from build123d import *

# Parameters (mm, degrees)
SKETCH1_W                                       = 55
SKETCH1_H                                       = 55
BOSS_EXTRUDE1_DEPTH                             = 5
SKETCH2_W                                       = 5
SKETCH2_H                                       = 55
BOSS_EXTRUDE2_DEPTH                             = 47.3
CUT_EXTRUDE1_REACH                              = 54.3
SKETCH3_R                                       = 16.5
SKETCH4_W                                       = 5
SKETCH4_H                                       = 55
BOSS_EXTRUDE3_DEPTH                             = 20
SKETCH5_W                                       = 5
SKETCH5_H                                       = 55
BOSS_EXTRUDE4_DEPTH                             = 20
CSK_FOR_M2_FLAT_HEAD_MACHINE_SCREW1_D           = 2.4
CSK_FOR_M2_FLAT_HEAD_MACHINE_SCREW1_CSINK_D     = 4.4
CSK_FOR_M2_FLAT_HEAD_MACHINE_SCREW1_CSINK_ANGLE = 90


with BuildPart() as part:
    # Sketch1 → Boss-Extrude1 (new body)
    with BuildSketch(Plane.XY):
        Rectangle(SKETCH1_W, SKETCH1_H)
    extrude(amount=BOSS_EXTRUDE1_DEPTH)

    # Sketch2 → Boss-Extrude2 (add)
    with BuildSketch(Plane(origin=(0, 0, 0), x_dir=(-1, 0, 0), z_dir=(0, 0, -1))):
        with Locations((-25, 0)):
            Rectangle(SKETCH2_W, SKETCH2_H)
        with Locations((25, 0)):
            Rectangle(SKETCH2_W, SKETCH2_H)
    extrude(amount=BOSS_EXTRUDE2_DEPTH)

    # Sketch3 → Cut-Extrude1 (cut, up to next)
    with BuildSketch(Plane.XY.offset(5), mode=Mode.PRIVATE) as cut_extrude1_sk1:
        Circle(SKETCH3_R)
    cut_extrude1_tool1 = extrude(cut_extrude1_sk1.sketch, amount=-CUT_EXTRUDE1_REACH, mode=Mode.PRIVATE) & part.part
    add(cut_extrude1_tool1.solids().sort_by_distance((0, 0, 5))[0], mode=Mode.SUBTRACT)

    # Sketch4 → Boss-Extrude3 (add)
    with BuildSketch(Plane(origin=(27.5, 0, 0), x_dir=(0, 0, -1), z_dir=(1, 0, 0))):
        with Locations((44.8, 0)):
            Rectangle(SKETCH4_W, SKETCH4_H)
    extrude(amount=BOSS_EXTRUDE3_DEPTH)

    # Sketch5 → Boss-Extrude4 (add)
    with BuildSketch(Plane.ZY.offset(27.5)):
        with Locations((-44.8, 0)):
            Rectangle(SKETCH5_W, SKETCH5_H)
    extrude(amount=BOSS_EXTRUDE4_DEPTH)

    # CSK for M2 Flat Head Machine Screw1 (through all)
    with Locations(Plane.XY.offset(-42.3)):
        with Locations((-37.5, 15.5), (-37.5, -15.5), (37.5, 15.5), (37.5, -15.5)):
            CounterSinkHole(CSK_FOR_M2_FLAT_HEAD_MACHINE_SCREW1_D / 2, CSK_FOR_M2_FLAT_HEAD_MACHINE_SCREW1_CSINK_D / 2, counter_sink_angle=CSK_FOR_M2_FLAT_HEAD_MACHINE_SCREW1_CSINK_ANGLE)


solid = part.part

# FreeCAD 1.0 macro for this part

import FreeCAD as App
import Part
import Sketcher
from FreeCAD import Vector
Q = App.Units.Quantity

doc = App.newDocument("Part")
body = doc.addObject("PartDesign::Body", "Body")

# Sketch on XY plane
sketch1 = doc.addObject("Sketcher::SketchObject", "Sketch")
body.addObject(sketch1)
sketch1.AttachmentSupport = (doc.XY_Plane, [""])
sketch1.MapMode = "FlatFace"
sketch1.addGeometry([
    Part.LineSegment(Vector(-28, 28, 0), Vector(-28, -28, 0)),
    Part.LineSegment(Vector(-28, -28, 0), Vector(28, -28, 0)),
    Part.LineSegment(Vector(28, -28, 0), Vector(28, 28, 0)),
    Part.LineSegment(Vector(28, 28, 0), Vector(-28, 28, 0)),
], False)
sketch1.addConstraint([
    Sketcher.Constraint("Coincident", 0, 2, 1, 1),
    Sketcher.Constraint("Coincident", 1, 2, 2, 1),
    Sketcher.Constraint("Coincident", 2, 2, 3, 1),
    Sketcher.Constraint("Coincident", 3, 2, 0, 1),
    Sketcher.Constraint("Vertical", 0),
    Sketcher.Constraint("Horizontal", 1),
    Sketcher.Constraint("Vertical", 2),
    Sketcher.Constraint("Horizontal", 3),
    Sketcher.Constraint("Symmetric", 0, 2, 2, 2, -1, 1),
    Sketcher.Constraint("Equal", 3, 0),
    Sketcher.Constraint("DistanceX", 1, 1, 1, 2, Q("55 mm")),
])
pad1 = doc.addObject("PartDesign::Pad", "Pad")
body.addObject(pad1)
pad1.Profile = sketch1
pad1.Length = 5

# Sketch on XY plane
sketch2 = doc.addObject("Sketcher::SketchObject", "Sketch001")
body.addObject(sketch2)
sketch2.AttachmentSupport = (doc.XY_Plane, [""])
sketch2.MapMode = "FlatFace"
sketch2.addGeometry([
    Part.LineSegment(Vector(28, 28, 0), Vector(28, -28, 0)),  # 0
    Part.LineSegment(Vector(28, -28, 0), Vector(22, -28, 0)),  # 1
    Part.LineSegment(Vector(22, -28, 0), Vector(22, 28, 0)),  # 2
    Part.LineSegment(Vector(22, 28, 0), Vector(28, 28, 0)),  # 3
    Part.LineSegment(Vector(-22, 28, 0), Vector(-22, -28, 0)),  # 4
    Part.LineSegment(Vector(-22, -28, 0), Vector(-28, -28, 0)),  # 5
    Part.LineSegment(Vector(-28, -28, 0), Vector(-28, 28, 0)),  # 6
    Part.LineSegment(Vector(-28, 28, 0), Vector(-22, 28, 0)),  # 7
], False)
sketch2.addConstraint([
    Sketcher.Constraint("Coincident", 0, 2, 1, 1),
    Sketcher.Constraint("Coincident", 1, 2, 2, 1),
    Sketcher.Constraint("Coincident", 2, 2, 3, 1),
    Sketcher.Constraint("Coincident", 3, 2, 0, 1),
    Sketcher.Constraint("Coincident", 4, 2, 5, 1),
    Sketcher.Constraint("Coincident", 5, 2, 6, 1),
    Sketcher.Constraint("Coincident", 6, 2, 7, 1),
    Sketcher.Constraint("Coincident", 7, 2, 4, 1),
    Sketcher.Constraint("Vertical", 0),
    Sketcher.Constraint("Horizontal", 1),
    Sketcher.Constraint("Vertical", 2),
    Sketcher.Constraint("Horizontal", 3),
    Sketcher.Constraint("Vertical", 4),
    Sketcher.Constraint("Horizontal", 5),
    Sketcher.Constraint("Vertical", 6),
    Sketcher.Constraint("Horizontal", 7),
    Sketcher.Constraint("Symmetric", 2, 2, 4, 2, -1, 1),
    Sketcher.Constraint("Symmetric", 0, 2, 6, 2, -1, 1),
    Sketcher.Constraint("Horizontal", 1, 2, 4, 2),
    Sketcher.Constraint("DistanceX", 1, 2, 1, 1, Q("5 mm")),
    Sketcher.Constraint("DistanceY", 0, 2, 0, 1, Q("55 mm")),
    Sketcher.Constraint("DistanceX", 4, 2, 1, 2, Q("45 mm")),
])
pad2 = doc.addObject("PartDesign::Pad", "Pad001")
body.addObject(pad2)
pad2.Profile = sketch2
pad2.Length = 47.3
pad2.Reversed = True

# Sketch on XY plane
sketch3 = doc.addObject("Sketcher::SketchObject", "Sketch002")
body.addObject(sketch3)
sketch3.AttachmentSupport = (doc.XY_Plane, [""])
sketch3.MapMode = "FlatFace"
sketch3.AttachmentOffset = App.Placement(Vector(0, 0, 5), App.Rotation())
sketch3.addGeometry(Part.Circle(Vector(0, 0, 0), Vector(0, 0, 1), 16), False)
sketch3.addConstraint([
    Sketcher.Constraint("Coincident", 0, 3, -1, 1),
    Sketcher.Constraint("Diameter", 0, Q("33 mm")),
])
pocket1 = doc.addObject("PartDesign::Pocket", "Pocket")
body.addObject(pocket1)
pocket1.Profile = sketch3
pocket1.Type = "UpToFirst"

# Sketch on YZ plane
sketch4 = doc.addObject("Sketcher::SketchObject", "Sketch003")
body.addObject(sketch4)
sketch4.AttachmentSupport = (doc.YZ_Plane, [""])
sketch4.MapMode = "FlatFace"
sketch4.AttachmentOffset = App.Placement(Vector(0, 0, 27.5), App.Rotation())
sketch4.addGeometry([
    Part.LineSegment(Vector(28, -42, 0), Vector(-28, -42, 0)),
    Part.LineSegment(Vector(-28, -42, 0), Vector(-28, -47, 0)),
    Part.LineSegment(Vector(-28, -47, 0), Vector(28, -47, 0)),
    Part.LineSegment(Vector(28, -47, 0), Vector(28, -42, 0)),
], False)
sketch4.addConstraint([
    Sketcher.Constraint("Coincident", 0, 2, 1, 1),
    Sketcher.Constraint("Coincident", 1, 2, 2, 1),
    Sketcher.Constraint("Coincident", 2, 2, 3, 1),
    Sketcher.Constraint("Coincident", 3, 2, 0, 1),
    Sketcher.Constraint("Horizontal", 0),
    Sketcher.Constraint("Vertical", 1),
    Sketcher.Constraint("Horizontal", 2),
    Sketcher.Constraint("Vertical", 3),
    Sketcher.Constraint("DistanceX", 0, 2, 0, 1, Q("55 mm")),
    Sketcher.Constraint("DistanceY", 1, 2, 1, 1, Q("5 mm")),
    Sketcher.Constraint("DistanceX", 0, 2, -1, 1, Q("27.5 mm")),
    Sketcher.Constraint("DistanceY", 0, 2, -1, 1, Q("42.3 mm")),
])
pad3 = doc.addObject("PartDesign::Pad", "Pad002")
body.addObject(pad3)
pad3.Profile = sketch4
pad3.Length = 20

# Sketch on YZ plane
sketch5 = doc.addObject("Sketcher::SketchObject", "Sketch004")
body.addObject(sketch5)
sketch5.AttachmentSupport = (doc.YZ_Plane, [""])
sketch5.MapMode = "FlatFace"
sketch5.AttachmentOffset = App.Placement(Vector(0, 0, -27.5), App.Rotation())
sketch5.addGeometry([
    Part.LineSegment(Vector(28, -47, 0), Vector(-28, -47, 0)),
    Part.LineSegment(Vector(-28, -47, 0), Vector(-28, -42, 0)),
    Part.LineSegment(Vector(-28, -42, 0), Vector(28, -42, 0)),
    Part.LineSegment(Vector(28, -42, 0), Vector(28, -47, 0)),
], False)
sketch5.addConstraint([
    Sketcher.Constraint("Coincident", 0, 2, 1, 1),
    Sketcher.Constraint("Coincident", 1, 2, 2, 1),
    Sketcher.Constraint("Coincident", 2, 2, 3, 1),
    Sketcher.Constraint("Coincident", 3, 2, 0, 1),
    Sketcher.Constraint("Horizontal", 0),
    Sketcher.Constraint("Vertical", 1),
    Sketcher.Constraint("Horizontal", 2),
    Sketcher.Constraint("Vertical", 3),
    Sketcher.Constraint("DistanceX", 0, 2, 0, 1, Q("55 mm")),
    Sketcher.Constraint("DistanceY", 1, 1, 1, 2, Q("5 mm")),
    Sketcher.Constraint("DistanceX", 0, 2, -1, 1, Q("27.5 mm")),
    Sketcher.Constraint("DistanceY", 0, 2, -1, 1, Q("47.3 mm")),
])
pad4 = doc.addObject("PartDesign::Pad", "Pad003")
body.addObject(pad4)
pad4.Profile = sketch5
pad4.Length = 20
pad4.Reversed = True

# Sketch on XY plane
sketch6 = doc.addObject("Sketcher::SketchObject", "Sketch005")
body.addObject(sketch6)
sketch6.AttachmentSupport = (doc.XY_Plane, [""])
sketch6.MapMode = "FlatFace"
sketch6.AttachmentOffset = App.Placement(Vector(0, 0, -42.3), App.Rotation())
sketch6.addGeometry([
    Part.Circle(Vector(-37.5, 15.5, 0), Vector(0, 0, 1), 1.2),
    Part.Circle(Vector(-37.5, -15.5, 0), Vector(0, 0, 1), 1.2),
    Part.Circle(Vector(37.5, 15.5, 0), Vector(0, 0, 1), 1.2),
    Part.Circle(Vector(37.5, -15.5, 0), Vector(0, 0, 1), 1.2),
], False)
sketch6.addConstraint([
    Sketcher.Constraint("Equal", 0, 1),
    Sketcher.Constraint("Equal", 1, 2),
    Sketcher.Constraint("Equal", 2, 3),
    Sketcher.Constraint("Symmetric", 1, 3, 2, 3, -1, 1),
    Sketcher.Constraint("Symmetric", 0, 3, 3, 3, -1, 1),
    Sketcher.Constraint("Symmetric", 0, 3, 2, 3, -2),
    Sketcher.Constraint("Diameter", 0, Q("2.4 mm")),
    Sketcher.Constraint("DistanceY", 1, 3, 0, 3, Q("31 mm")),
    Sketcher.Constraint("DistanceX", 0, 3, 2, 3, Q("75 mm")),
])
doc.recompute()
hole = doc.addObject("PartDesign::Hole", "Hole")
body.addObject(hole)
hole.Profile = sketch6
hole.ThreadType = "None"
hole.Diameter = 2.4
hole.DepthType = "ThroughAll"
hole.HoleCutType = "Countersink"
hole.HoleCutDiameter = 4.4
hole.HoleCutCountersinkAngle = 90

doc.recompute()
